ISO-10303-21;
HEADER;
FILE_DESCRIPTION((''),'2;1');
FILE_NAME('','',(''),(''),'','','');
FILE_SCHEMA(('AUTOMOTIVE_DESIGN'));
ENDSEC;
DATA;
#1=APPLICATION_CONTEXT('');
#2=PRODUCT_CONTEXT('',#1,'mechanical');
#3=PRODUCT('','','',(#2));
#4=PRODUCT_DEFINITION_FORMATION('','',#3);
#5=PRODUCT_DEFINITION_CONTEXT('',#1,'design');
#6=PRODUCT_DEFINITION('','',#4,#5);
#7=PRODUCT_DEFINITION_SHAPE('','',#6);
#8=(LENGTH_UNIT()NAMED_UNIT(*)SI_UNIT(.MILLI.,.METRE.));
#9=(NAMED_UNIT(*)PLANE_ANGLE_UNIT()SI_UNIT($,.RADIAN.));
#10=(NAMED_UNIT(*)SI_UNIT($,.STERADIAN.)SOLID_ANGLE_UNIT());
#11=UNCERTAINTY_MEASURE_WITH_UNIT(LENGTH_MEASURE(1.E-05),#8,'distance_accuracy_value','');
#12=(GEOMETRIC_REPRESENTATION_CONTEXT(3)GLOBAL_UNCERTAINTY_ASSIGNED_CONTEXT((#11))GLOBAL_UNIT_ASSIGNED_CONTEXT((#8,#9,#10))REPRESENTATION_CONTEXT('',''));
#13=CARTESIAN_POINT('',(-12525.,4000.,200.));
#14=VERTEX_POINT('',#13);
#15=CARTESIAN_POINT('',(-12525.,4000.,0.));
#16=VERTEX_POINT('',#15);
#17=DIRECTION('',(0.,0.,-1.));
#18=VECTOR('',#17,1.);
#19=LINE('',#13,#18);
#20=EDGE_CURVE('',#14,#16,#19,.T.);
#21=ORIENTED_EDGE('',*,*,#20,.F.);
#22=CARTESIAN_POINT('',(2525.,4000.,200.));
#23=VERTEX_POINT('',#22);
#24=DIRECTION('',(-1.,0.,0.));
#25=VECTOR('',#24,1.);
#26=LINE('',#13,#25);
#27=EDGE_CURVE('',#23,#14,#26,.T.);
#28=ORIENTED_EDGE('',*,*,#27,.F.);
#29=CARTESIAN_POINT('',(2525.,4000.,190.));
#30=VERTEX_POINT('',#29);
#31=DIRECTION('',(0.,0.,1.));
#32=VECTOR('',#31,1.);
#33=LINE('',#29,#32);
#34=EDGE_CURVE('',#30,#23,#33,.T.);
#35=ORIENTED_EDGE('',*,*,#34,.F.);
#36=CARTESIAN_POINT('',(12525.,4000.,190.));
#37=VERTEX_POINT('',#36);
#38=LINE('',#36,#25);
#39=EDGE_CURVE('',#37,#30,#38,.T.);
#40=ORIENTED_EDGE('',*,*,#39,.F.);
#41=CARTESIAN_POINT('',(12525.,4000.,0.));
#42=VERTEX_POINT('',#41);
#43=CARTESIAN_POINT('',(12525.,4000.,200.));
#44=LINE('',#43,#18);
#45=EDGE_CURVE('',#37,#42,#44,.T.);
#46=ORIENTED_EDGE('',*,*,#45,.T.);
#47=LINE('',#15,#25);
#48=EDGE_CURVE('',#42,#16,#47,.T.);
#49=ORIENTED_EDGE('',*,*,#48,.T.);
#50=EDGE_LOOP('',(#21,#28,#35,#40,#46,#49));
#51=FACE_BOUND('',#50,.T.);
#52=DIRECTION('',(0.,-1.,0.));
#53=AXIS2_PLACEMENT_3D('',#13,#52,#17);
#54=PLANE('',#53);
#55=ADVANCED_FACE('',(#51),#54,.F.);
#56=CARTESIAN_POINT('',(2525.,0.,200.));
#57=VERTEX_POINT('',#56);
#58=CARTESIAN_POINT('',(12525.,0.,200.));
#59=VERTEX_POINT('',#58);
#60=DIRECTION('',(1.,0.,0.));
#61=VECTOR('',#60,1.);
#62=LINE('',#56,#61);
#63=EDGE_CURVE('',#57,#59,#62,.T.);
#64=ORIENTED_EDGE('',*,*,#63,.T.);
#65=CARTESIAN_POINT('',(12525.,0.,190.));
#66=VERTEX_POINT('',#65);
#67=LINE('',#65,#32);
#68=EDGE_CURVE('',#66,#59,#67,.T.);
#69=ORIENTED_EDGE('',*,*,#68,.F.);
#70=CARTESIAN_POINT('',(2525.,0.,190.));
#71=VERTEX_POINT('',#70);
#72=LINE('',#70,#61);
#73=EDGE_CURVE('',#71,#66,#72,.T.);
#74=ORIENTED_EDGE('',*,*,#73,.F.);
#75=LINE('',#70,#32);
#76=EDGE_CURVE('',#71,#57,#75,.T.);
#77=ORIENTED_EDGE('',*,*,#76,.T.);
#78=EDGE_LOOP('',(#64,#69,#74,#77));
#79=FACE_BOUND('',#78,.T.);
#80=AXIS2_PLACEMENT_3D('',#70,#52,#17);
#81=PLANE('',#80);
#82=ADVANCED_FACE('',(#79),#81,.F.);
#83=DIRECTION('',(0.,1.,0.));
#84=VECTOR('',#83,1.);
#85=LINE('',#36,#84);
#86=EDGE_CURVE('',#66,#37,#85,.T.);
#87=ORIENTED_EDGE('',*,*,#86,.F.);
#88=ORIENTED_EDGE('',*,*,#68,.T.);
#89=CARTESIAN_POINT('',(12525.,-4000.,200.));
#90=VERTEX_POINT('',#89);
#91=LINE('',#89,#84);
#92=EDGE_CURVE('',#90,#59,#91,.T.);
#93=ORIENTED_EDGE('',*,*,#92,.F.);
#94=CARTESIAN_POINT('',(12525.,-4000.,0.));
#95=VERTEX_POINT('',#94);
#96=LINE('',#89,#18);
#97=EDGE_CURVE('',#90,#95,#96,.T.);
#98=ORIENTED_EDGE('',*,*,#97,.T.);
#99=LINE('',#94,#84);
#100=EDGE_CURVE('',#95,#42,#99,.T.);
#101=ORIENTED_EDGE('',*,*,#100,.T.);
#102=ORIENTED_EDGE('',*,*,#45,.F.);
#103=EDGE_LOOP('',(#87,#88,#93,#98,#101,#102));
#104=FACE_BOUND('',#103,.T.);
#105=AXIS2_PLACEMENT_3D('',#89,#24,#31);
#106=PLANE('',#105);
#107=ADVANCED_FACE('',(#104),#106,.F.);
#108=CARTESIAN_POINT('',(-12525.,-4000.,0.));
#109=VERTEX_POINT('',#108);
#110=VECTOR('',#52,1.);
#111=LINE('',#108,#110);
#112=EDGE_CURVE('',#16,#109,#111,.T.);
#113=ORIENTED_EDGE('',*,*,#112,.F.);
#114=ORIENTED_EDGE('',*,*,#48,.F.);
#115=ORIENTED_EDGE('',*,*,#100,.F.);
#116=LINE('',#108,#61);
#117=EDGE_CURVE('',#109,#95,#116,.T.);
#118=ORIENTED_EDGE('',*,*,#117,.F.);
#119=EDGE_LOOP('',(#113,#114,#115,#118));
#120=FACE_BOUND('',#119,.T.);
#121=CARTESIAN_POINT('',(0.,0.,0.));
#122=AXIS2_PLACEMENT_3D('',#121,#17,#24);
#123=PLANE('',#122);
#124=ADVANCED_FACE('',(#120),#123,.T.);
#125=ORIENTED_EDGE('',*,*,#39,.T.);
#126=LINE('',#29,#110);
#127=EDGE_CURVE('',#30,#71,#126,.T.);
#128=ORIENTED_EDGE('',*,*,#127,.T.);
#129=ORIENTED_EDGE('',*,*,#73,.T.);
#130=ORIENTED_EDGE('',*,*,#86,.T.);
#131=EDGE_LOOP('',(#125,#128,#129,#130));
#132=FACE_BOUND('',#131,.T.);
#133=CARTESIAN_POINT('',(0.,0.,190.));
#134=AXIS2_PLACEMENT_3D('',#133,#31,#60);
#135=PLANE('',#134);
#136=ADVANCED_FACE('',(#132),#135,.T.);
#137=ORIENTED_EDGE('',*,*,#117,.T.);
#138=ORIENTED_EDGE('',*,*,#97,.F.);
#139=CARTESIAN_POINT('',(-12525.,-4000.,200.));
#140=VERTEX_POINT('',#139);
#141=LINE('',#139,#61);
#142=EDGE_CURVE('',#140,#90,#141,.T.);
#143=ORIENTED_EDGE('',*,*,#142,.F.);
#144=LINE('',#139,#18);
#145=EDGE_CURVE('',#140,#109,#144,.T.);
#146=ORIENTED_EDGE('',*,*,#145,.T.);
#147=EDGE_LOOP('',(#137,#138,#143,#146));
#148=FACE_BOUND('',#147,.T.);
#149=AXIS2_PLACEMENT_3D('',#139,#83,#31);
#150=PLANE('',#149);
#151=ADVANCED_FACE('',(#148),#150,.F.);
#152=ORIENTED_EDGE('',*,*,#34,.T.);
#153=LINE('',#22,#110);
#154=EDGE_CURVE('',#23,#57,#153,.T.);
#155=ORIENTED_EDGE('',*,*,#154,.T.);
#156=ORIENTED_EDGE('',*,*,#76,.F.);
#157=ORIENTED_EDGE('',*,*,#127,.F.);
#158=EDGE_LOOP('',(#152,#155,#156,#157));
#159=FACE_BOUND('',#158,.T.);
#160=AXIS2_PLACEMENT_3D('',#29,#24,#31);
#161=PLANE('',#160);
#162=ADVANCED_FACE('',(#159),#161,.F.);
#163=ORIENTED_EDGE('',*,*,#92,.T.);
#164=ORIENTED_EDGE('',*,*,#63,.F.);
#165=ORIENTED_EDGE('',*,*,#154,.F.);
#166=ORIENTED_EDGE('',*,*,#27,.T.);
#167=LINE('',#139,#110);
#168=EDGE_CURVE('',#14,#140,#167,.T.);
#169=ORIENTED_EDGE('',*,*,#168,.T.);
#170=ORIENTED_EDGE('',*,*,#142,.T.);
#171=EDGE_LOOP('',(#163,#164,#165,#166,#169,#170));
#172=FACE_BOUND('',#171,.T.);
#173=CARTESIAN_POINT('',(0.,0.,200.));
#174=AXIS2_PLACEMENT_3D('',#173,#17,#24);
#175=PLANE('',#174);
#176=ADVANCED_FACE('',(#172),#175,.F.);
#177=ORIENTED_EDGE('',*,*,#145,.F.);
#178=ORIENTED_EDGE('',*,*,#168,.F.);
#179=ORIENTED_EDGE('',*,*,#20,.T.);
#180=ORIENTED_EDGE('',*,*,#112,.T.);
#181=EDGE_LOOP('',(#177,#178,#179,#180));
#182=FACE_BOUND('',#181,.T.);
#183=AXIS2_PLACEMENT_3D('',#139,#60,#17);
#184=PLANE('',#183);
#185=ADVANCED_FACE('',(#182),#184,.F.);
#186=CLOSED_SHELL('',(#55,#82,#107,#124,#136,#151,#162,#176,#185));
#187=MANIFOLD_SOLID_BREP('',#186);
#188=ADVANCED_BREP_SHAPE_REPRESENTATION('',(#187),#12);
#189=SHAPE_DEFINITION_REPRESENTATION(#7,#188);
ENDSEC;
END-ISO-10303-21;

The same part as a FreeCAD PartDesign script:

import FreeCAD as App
import Part
import Sketcher
from FreeCAD import Vector

doc = App.newDocument("Part")
params = doc.addObject("Spreadsheet::Sheet", "Params")
for row, (alias, value) in enumerate([
    ("sketch1_width", "25050 mm"),
    ("sketch1_height", "8000 mm"),
    ("pad1_length", "200 mm"),
    ("sketch2_width", "10000 mm"),
    ("sketch2_height", "4000 mm"),
    ("pocket1_length", "10 mm"),
], start=1):
    params.set(f"A{row}", alias)
    params.set(f"B{row}", "=" + value)
    params.setAlias(f"B{row}", alias)

body = doc.addObject("PartDesign::Body", "Body")

sketch1 = body.newObject("Sketcher::SketchObject", "Sketch")
sketch1.AttachmentSupport = (doc.getObject("XY_Plane"), [""])
sketch1.MapMode = "FlatFace"
sketch1.addGeometry([
    Part.LineSegment(Vector(-12525, 4000, 0), Vector(-12525, -4000, 0)),
    Part.LineSegment(Vector(-12525, -4000, 0), Vector(12525, -4000, 0)),
    Part.LineSegment(Vector(12525, -4000, 0), Vector(12525, 4000, 0)),
    Part.LineSegment(Vector(12525, 4000, 0), Vector(-12525, 4000, 0)),
], False)
sketch1.addConstraint([
    Sketcher.Constraint("Coincident", 0, 2, 1, 1),
    Sketcher.Constraint("Coincident", 1, 2, 2, 1),
    Sketcher.Constraint("Coincident", 2, 2, 3, 1),
    Sketcher.Constraint("Coincident", 3, 2, 0, 1),
    Sketcher.Constraint("Vertical", 0),
    Sketcher.Constraint("Horizontal", 1),
    Sketcher.Constraint("Vertical", 2),
    Sketcher.Constraint("Horizontal", 3),
    Sketcher.Constraint("Symmetric", 0, 2, 2, 2, -1, 1),
    Sketcher.Constraint("DistanceX", 1, 1, 1, 2, 25050.0),
    Sketcher.Constraint("DistanceY", 0, 2, 0, 1, 8000.0),
])
sketch1.setExpression("Constraints[9]", "Params.sketch1_width")
sketch1.setExpression("Constraints[10]", "Params.sketch1_height")
pad1 = body.newObject("PartDesign::Pad", "Pad")
pad1.Profile = sketch1
pad1.setExpression("Length", "Params.pad1_length")

sketch2 = body.newObject("Sketcher::SketchObject", "Sketch001")
sketch2.AttachmentSupport = (doc.getObject("XY_Plane"), [""])
sketch2.MapMode = "FlatFace"
sketch2.AttachmentOffset = App.Placement(Vector(0, 0, 200), App.Rotation())
sketch2.addGeometry([
    Part.LineSegment(Vector(2525, 4000, 0), Vector(2525, 0, 0)),
    Part.LineSegment(Vector(2525, 0, 0), Vector(12525, 0, 0)),
    Part.LineSegment(Vector(12525, 0, 0), Vector(12525, 4000, 0)),
    Part.LineSegment(Vector(12525, 4000, 0), Vector(2525, 4000, 0)),
], False)
sketch2.addConstraint([
    Sketcher.Constraint("Coincident", 0, 2, 1, 1),
    Sketcher.Constraint("Coincident", 1, 2, 2, 1),
    Sketcher.Constraint("Coincident", 2, 2, 3, 1),
    Sketcher.Constraint("Coincident", 3, 2, 0, 1),
    Sketcher.Constraint("Vertical", 0),
    Sketcher.Constraint("Horizontal", 1),
    Sketcher.Constraint("Vertical", 2),
    Sketcher.Constraint("Horizontal", 3),
    Sketcher.Constraint("PointOnObject", 0, 2, -1),
    Sketcher.Constraint("DistanceX", 1, 1, 1, 2, 10000.0),
    Sketcher.Constraint("DistanceY", 0, 2, 0, 1, 4000.0),
    Sketcher.Constraint("DistanceX", -1, 1, 0, 2, 2525.0),
])
sketch2.setExpression("Constraints[9]", "Params.sketch2_width")
sketch2.setExpression("Constraints[10]", "Params.sketch2_height")
pocket1 = body.newObject("PartDesign::Pocket", "Pocket")
pocket1.Profile = sketch2
pocket1.setExpression("Length", "Params.pocket1_length")

doc.recompute()
